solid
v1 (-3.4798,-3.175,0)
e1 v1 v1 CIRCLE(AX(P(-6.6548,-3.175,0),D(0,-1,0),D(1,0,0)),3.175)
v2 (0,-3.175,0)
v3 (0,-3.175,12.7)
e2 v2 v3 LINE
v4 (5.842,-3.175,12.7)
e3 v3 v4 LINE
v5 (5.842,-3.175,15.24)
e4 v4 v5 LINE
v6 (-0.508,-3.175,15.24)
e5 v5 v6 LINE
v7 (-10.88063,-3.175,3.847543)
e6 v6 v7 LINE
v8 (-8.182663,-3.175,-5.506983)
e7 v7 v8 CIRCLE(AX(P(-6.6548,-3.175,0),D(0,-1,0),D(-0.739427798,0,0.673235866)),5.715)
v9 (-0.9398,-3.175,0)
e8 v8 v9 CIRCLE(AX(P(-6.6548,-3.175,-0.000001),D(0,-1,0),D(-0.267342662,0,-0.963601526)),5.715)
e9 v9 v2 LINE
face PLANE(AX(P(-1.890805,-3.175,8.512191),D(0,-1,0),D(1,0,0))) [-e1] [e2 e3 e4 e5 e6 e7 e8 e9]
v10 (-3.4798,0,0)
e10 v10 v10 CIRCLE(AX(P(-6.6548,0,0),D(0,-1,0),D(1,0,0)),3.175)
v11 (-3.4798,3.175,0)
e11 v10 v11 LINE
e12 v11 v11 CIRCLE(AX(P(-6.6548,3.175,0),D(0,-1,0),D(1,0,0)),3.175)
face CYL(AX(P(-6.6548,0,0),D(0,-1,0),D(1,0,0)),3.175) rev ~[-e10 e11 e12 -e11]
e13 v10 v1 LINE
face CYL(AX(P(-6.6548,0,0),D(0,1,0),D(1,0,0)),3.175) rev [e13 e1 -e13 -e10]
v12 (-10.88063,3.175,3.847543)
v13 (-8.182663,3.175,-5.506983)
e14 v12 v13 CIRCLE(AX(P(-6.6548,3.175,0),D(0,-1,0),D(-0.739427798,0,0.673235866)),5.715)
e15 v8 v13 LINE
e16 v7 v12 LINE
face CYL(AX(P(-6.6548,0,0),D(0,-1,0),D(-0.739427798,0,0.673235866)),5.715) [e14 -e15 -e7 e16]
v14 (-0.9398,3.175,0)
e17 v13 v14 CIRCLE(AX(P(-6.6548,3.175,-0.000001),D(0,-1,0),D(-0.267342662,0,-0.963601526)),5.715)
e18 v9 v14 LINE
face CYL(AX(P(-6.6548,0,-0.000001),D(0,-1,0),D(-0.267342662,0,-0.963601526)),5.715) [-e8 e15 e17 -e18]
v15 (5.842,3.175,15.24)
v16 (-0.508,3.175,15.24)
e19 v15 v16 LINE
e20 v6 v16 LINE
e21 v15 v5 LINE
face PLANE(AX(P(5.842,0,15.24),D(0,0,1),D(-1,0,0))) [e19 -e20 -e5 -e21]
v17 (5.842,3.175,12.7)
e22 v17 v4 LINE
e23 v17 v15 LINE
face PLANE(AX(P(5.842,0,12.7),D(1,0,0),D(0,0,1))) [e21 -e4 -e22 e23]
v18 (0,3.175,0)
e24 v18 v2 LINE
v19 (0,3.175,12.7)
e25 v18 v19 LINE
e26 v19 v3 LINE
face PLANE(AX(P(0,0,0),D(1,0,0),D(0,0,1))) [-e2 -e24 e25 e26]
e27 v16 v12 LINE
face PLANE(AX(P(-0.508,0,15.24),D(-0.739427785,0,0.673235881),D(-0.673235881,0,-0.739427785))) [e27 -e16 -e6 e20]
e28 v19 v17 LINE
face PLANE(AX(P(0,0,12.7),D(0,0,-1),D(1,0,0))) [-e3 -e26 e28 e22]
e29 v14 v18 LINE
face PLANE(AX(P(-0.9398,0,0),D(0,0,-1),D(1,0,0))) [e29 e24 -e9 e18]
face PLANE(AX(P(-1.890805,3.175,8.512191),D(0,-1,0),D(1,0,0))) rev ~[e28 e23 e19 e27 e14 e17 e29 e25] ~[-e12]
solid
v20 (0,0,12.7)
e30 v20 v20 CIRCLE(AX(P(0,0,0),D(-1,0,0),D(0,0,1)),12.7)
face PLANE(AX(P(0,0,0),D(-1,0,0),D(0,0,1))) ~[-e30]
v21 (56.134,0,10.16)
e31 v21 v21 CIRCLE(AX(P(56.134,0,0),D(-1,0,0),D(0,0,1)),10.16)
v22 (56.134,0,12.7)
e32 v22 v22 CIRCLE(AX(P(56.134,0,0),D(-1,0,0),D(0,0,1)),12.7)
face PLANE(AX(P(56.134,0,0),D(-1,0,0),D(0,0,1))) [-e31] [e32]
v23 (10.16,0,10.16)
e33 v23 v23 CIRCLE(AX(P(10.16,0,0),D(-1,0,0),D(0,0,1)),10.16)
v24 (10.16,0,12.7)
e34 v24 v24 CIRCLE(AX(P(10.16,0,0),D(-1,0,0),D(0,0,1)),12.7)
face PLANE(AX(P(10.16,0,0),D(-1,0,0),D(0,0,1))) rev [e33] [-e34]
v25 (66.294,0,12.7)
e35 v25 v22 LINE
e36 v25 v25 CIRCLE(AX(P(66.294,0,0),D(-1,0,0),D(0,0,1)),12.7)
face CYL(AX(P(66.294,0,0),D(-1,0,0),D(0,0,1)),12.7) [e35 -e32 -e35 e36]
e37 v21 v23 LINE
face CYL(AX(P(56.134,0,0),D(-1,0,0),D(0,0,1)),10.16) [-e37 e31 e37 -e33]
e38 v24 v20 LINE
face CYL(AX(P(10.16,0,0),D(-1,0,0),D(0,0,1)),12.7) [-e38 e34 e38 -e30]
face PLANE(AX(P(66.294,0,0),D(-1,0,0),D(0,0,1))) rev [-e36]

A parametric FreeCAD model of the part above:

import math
import FreeCAD as App
import Part
import Sketcher
from FreeCAD import Vector
Q = App.Units.Quantity


def add_polygon(sketch, points):
    """Adds a closed chain of lines whose ends are joined by coincident constraints."""
    first, n = sketch.GeometryCount, len(points)
    for a, b in zip(points, points[1:] + points[:1]):
        sketch.addGeometry(Part.LineSegment(App.Vector(*a, 0), App.Vector(*b, 0)), False)
    for i in range(n):
        sketch.addConstraint(Sketcher.Constraint("Coincident", first + i, 2, first + (i + 1) % n, 1))

doc = App.newDocument("Part")
params = doc.addObject("Spreadsheet::Sheet", "Params")
for row, (alias, value) in enumerate([
    ("sketch1_width", "0.4 in"),
    ("sketch1_height", "0.5 in"),
    ("sketch1_height2", "0.1 in"),
    ("sketch1_width2", "1.81 in"),
    ("revolution_angle", "360 deg"),
    ("sketch2_diameter", "0.25 in"),
    ("sketch2_height", "0.5 in"),
    ("sketch2_height2", "0.1 in"),
    ("sketch2_radius", "0.225 in"),
    ("sketch2_width", "0.23 in"),
    ("pad1_length", "0.125 in"),
    ("pad1_length2", "0.125 in"),
], start=1):
    params.set(f"A{row}", alias)
    params.set(f"B{row}", "=" + value)
    params.setAlias(f"B{row}", alias)

body = doc.addObject("PartDesign::Body", "Body")

sketch1 = body.newObject("Sketcher::SketchObject", "Sketch")
sketch1.AttachmentSupport = (doc.getObject("XZ_Plane"), [""])
sketch1.MapMode = "FlatFace"
add_polygon(sketch1, [(66.294, 0), (66.294, 12.7), (56.134, 12.7), (56.134, 10.16), (10.16, 10.16), (10.16, 12.7), (0, 12.7), (0, 0)])
sketch1.addConstraint([
    Sketcher.Constraint("Vertical", 0),
    Sketcher.Constraint("Horizontal", 1),
    Sketcher.Constraint("Vertical", 2),
    Sketcher.Constraint("Horizontal", 3),
    Sketcher.Constraint("Vertical", 4),
    Sketcher.Constraint("Horizontal", 5),
    Sketcher.Constraint("Vertical", 6),
    Sketcher.Constraint("Horizontal", 7),
    Sketcher.Constraint("Coincident", 6, 2, -1, 1),
    Sketcher.Constraint("Horizontal", 1, 2, 4, 2),
    Sketcher.Constraint("Equal", 1, 5),
    Sketcher.Constraint("DistanceX", 1, 2, 1, 1, Q("0.4 in")),
    Sketcher.Constraint("DistanceY", 0, 1, 0, 2, Q("0.5 in")),
    Sketcher.Constraint("DistanceY", 2, 2, 2, 1, Q("0.1 in")),
    Sketcher.Constraint("DistanceX", 3, 2, 3, 1, Q("1.81 in")),
])
sketch1.setExpression("Constraints[19]", "Params.sketch1_width")
sketch1.setExpression("Constraints[20]", "Params.sketch1_height")
sketch1.setExpression("Constraints[21]", "Params.sketch1_height2")
sketch1.setExpression("Constraints[22]", "Params.sketch1_width2")
revolution = body.newObject("PartDesign::Revolution", "Revolution")
revolution.Profile = sketch1
revolution.ReferenceAxis = (sketch1, ["H_Axis"])
revolution.setExpression("Angle", "Params.revolution_angle")
body2 = doc.addObject("PartDesign::Body", "Body001")

sketch2 = body2.newObject("Sketcher::SketchObject", "Sketch001")
sketch2.AttachmentSupport = (doc.getObject("XZ_Plane001"), [""])
sketch2.MapMode = "FlatFace"
sketch2.addGeometry([
    Part.LineSegment(Vector(-0.9398, 0, 0), Vector(0, 0, 0)),
    Part.LineSegment(Vector(0, 0, 0), Vector(0, 12.7, 0)),
    Part.LineSegment(Vector(0, 12.7, 0), Vector(5.842, 12.7, 0)),
    Part.LineSegment(Vector(5.842, 12.7, 0), Vector(5.842, 15.24, 0)),
    Part.LineSegment(Vector(5.842, 15.24, 0), Vector(-0.508, 15.24, 0)),
    Part.LineSegment(Vector(-0.508, 15.24, 0), Vector(-10.88063, 3.847543, 0)),
    Part.ArcOfCircle(Part.Circle(Vector(-6.6548, 0, 0), Vector(0, 0, 1), 5.715), math.radians(137.682696), math.radians(254.493803)),
    Part.ArcOfCircle(Part.Circle(Vector(-6.6548, -0.000001, 0), Vector(0, 0, 1), 5.715), math.radians(-105.506201), math.radians(0.000005)),
    Part.Circle(Vector(-6.6548, 0, 0), Vector(0, 0, 1), 3.175),
], False)
sketch2.addConstraint([
    Sketcher.Constraint("Coincident", 0, 2, 1, 1),
    Sketcher.Constraint("Coincident", 1, 2, 2, 1),
    Sketcher.Constraint("Coincident", 2, 2, 3, 1),
    Sketcher.Constraint("Coincident", 3, 2, 4, 1),
    Sketcher.Constraint("Coincident", 4, 2, 5, 1),
    Sketcher.Constraint("Tangent", 5, 2, 6, 1),
    Sketcher.Constraint("Tangent", 6, 2, 7, 1),
    Sketcher.Constraint("Coincident", 7, 2, 0, 1),
    Sketcher.Constraint("Horizontal", 0),
    Sketcher.Constraint("Vertical", 1),
    Sketcher.Constraint("Horizontal", 2),
    Sketcher.Constraint("Vertical", 3),
    Sketcher.Constraint("Horizontal", 4),
    Sketcher.Constraint("Coincident", 0, 2, -1, 1),
    Sketcher.Constraint("Coincident", 8, 3, 6, 3),
    Sketcher.Constraint("Equal", 6, 7),
    Sketcher.Constraint("PointOnObject", 6, 3, -1),
    Sketcher.Constraint("Diameter", 8, Q("0.25 in")),
    Sketcher.Constraint("DistanceY", 1, 1, 1, 2, Q("0.5 in")),
    Sketcher.Constraint("DistanceY", 3, 1, 3, 2, Q("0.1 in")),
    Sketcher.Constraint("Radius", 6, Q("0.225 in")),
    Sketcher.Constraint("DistanceX", 2, 1, 2, 2, Q("0.23 in")),
    Sketcher.Constraint("DistanceX", 4, 2, 4, 1, Q("0.25 in")),
    Sketcher.Constraint("DistanceX", 0, 1, 0, 2, Q("0.037 in")),
    Sketcher.Constraint("DistanceX", 6, 2, -1, 1, Q("8.182663 mm")),
])
sketch2.setExpression("Constraints[17]", "Params.sketch2_diameter")
sketch2.setExpression("Constraints[18]", "Params.sketch2_height")
sketch2.setExpression("Constraints[19]", "Params.sketch2_height2")
sketch2.setExpression("Constraints[20]", "Params.sketch2_radius")
sketch2.setExpression("Constraints[21]", "Params.sketch2_width")
pad1 = body2.newObject("PartDesign::Pad", "Pad")
pad1.Profile = sketch2
pad1.Type = "TwoLengths"
pad1.setExpression("Length", "Params.pad1_length")
pad1.setExpression("Length2", "Params.pad1_length2")

doc.recompute()
